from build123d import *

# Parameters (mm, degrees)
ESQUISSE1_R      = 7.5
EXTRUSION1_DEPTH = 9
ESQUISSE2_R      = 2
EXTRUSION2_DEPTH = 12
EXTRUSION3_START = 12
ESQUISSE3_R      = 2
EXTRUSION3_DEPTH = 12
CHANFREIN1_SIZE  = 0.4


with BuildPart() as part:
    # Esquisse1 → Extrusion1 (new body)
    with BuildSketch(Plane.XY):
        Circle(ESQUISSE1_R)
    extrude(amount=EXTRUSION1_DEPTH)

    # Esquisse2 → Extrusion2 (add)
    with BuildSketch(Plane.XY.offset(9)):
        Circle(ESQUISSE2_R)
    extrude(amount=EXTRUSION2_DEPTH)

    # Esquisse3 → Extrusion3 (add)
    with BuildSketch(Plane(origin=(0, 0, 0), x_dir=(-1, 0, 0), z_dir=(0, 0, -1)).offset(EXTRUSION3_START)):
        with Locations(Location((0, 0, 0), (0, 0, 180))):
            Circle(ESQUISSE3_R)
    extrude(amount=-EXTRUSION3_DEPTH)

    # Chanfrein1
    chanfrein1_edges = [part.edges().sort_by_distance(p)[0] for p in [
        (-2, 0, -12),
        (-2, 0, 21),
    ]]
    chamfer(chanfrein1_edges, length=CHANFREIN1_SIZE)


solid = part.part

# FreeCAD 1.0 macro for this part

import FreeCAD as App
import Part
import Sketcher
from FreeCAD import Vector
Q = App.Units.Quantity


def edges_at(feature, points):
    """Names of the edges that pass closest to the given points."""
    edges = feature.Shape.Edges
    near = lambda p: min(range(len(edges)), key=lambda i: edges[i].distToShape(Part.Vertex(*p))[0])
    return sorted({f"Edge{near(p) + 1}" for p in points})

doc = App.newDocument("Part")
body = doc.addObject("PartDesign::Body", "Body")

# Sketch on XY plane
sketch1 = body.newObject("Sketcher::SketchObject", "Sketch")
sketch1.AttachmentSupport = (doc.getObject("XY_Plane"), [""])
sketch1.MapMode = "FlatFace"
sketch1.addGeometry(Part.Circle(Vector(0, 0, 0), Vector(0, 0, 1), 7.5), False)
sketch1.addConstraint([
    Sketcher.Constraint("Coincident", 0, 3, -1, 1),
    Sketcher.Constraint("Diameter", 0, Q("15 mm")),
])
pad1 = body.newObject("PartDesign::Pad", "Pad")
pad1.Profile = sketch1
pad1.Length = 9

# Sketch on XY plane
sketch2 = body.newObject("Sketcher::SketchObject", "Sketch001")
sketch2.AttachmentSupport = (doc.getObject("XY_Plane"), [""])
sketch2.MapMode = "FlatFace"
sketch2.AttachmentOffset = App.Placement(Vector(0, 0, 9), App.Rotation())
sketch2.addGeometry(Part.Circle(Vector(0, 0, 0), Vector(0, 0, 1), 2), False)
sketch2.addConstraint([
    Sketcher.Constraint("Coincident", 0, 3, -1, 1),
    Sketcher.Constraint("Diameter", 0, Q("4 mm")),
])
pad2 = body.newObject("PartDesign::Pad", "Pad001")
pad2.Profile = sketch2
pad2.Length = 12

# Sketch on XY plane
sketch3 = body.newObject("Sketcher::SketchObject", "Sketch002")
sketch3.AttachmentSupport = (doc.getObject("XY_Plane"), [""])
sketch3.MapMode = "FlatFace"
sketch3.AttachmentOffset = App.Placement(Vector(0, 0, -12), App.Rotation())
sketch3.addGeometry(Part.Circle(Vector(0, 0, 0), Vector(0, 0, 1), 2), False)
sketch3.addConstraint([
    Sketcher.Constraint("Coincident", 0, 3, -1, 1),
    Sketcher.Constraint("Diameter", 0, Q("4 mm")),
])
pad3 = body.newObject("PartDesign::Pad", "Pad002")
pad3.Profile = sketch3
pad3.Length = 12
doc.recompute()

chamfer = body.newObject("PartDesign::Chamfer", "Chamfer")
chamfer.Base = (pad3, edges_at(pad3, [(-2, 0, -12), (-2, 0, 21)]))
chamfer.Size = 0.4

doc.recompute()
